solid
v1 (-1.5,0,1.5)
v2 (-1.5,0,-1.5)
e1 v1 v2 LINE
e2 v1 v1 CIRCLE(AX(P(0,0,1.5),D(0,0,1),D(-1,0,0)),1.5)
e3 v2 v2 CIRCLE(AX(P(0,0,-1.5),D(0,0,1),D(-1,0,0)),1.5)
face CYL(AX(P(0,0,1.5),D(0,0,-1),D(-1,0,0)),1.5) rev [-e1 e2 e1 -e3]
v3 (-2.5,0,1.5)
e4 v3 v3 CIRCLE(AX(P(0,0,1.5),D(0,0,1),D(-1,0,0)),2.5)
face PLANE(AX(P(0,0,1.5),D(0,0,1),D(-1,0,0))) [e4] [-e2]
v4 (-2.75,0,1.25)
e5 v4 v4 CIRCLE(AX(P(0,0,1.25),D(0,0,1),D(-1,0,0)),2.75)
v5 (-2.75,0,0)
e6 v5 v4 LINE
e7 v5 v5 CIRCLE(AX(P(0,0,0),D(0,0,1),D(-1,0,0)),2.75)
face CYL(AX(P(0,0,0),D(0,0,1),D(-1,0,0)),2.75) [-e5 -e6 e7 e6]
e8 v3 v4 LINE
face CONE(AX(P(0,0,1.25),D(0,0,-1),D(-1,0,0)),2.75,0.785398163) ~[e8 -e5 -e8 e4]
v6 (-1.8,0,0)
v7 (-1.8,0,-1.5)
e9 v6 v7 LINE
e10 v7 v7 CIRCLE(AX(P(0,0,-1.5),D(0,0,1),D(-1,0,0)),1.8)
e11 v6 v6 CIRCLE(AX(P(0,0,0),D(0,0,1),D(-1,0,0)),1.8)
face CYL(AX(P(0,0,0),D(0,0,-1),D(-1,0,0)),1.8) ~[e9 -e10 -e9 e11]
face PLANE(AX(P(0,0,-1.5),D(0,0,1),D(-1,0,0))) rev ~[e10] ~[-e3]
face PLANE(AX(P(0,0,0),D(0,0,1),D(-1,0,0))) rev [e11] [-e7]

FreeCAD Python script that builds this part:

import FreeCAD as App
import Part
import Sketcher

V = App.Vector


def edges_at(feature, points):
    """Names of the edges that pass closest to the given points."""
    edges = feature.Shape.Edges
    near = lambda p: min(range(len(edges)), key=lambda i: edges[i].distToShape(Part.Vertex(*p))[0])
    return sorted({f"Edge{near(p) + 1}" for p in points})

doc = App.newDocument("Part")
body = doc.addObject("PartDesign::Body", "Body")

sketch1 = doc.addObject("Sketcher::SketchObject", "Sketch")
body.addObject(sketch1)
sketch1.AttachmentSupport = (doc.XZ_Plane, [""])
sketch1.MapMode = "FlatFace"
sketch1.addGeometry([
    Part.LineSegment(V(-1.5, 1.5, 0), V(-1.5, -1.5, 0)),
    Part.LineSegment(V(-1.5, -1.5, 0), V(-1.8, -1.5, 0)),
    Part.LineSegment(V(-1.8, -1.5, 0), V(-1.8, 0, 0)),
    Part.LineSegment(V(-1.8, 0, 0), V(-2.75, 0, 0)),
    Part.LineSegment(V(-2.75, 0, 0), V(-2.75, 1.5, 0)),
    Part.LineSegment(V(-2.75, 1.5, 0), V(-1.5, 1.5, 0)),
], False)
sketch1.addConstraint([
    Sketcher.Constraint("Coincident", 0, 2, 1, 1),
    Sketcher.Constraint("Coincident", 1, 2, 2, 1),
    Sketcher.Constraint("Coincident", 2, 2, 3, 1),
    Sketcher.Constraint("Coincident", 3, 2, 4, 1),
    Sketcher.Constraint("Coincident", 4, 2, 5, 1),
    Sketcher.Constraint("Coincident", 5, 2, 0, 1),
    Sketcher.Constraint("Vertical", 0),
    Sketcher.Constraint("Horizontal", 1),
    Sketcher.Constraint("Vertical", 2),
    Sketcher.Constraint("Horizontal", 3),
    Sketcher.Constraint("Vertical", 4),
    Sketcher.Constraint("Horizontal", 5),
    Sketcher.Constraint("PointOnObject", 2, 2, -1),
    Sketcher.Constraint("Equal", 2, 4),
    Sketcher.Constraint("DistanceY", 2, 1, 2, 2, 1.5),
    Sketcher.Constraint("DistanceX", 0, 2, -1, 1, 1.5),
    Sketcher.Constraint("DistanceX", 1, 2, -1, 1, 1.8),
    Sketcher.Constraint("DistanceX", 3, 2, -1, 1, 2.75),
])
revolution = doc.addObject("PartDesign::Revolution", "Revolution")
body.addObject(revolution)
revolution.Profile = sketch1
revolution.ReferenceAxis = (sketch1, ["V_Axis"])
revolution.Angle = 360
doc.recompute()

chamfer = doc.addObject("PartDesign::Chamfer", "Chamfer")
body.addObject(chamfer)
chamfer.Base = (revolution, edges_at(revolution, [(2.75, 0, 1.5)]))
chamfer.Size = 0.25

doc.recompute()
